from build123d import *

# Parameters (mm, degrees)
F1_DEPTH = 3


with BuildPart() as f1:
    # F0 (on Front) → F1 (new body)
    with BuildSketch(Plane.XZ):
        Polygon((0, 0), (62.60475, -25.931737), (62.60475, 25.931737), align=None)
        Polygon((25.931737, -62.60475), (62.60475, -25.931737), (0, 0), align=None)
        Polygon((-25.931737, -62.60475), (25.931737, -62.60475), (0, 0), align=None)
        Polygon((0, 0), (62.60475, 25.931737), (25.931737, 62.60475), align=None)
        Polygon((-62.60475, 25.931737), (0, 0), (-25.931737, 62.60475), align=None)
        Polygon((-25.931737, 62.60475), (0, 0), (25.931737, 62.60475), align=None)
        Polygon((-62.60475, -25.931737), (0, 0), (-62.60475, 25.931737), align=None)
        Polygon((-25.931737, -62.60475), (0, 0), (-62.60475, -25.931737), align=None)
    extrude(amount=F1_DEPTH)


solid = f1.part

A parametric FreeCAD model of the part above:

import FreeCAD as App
import Part
import Sketcher
Q = App.Units.Quantity


def add_polygon(sketch, points):
    """Adds a closed chain of lines whose ends are joined by coincident constraints."""
    first, n = sketch.GeometryCount, len(points)
    for a, b in zip(points, points[1:] + points[:1]):
        sketch.addGeometry(Part.LineSegment(App.Vector(*a, 0), App.Vector(*b, 0)), False)
    for i in range(n):
        sketch.addConstraint(Sketcher.Constraint("Coincident", first + i, 2, first + (i + 1) % n, 1))

doc = App.newDocument("Part")
body = doc.addObject("PartDesign::Body", "Body")

# Sketch on XZ plane
sketch1 = body.newObject("Sketcher::SketchObject", "Sketch")
sketch1.AttachmentSupport = (doc.getObject("XZ_Plane"), [""])
sketch1.MapMode = "FlatFace"
add_polygon(sketch1, [(63, -26), (63, 26), (26, 63), (-26, 63), (-63, 26), (-63, -26), (-26, -63), (26, -63)])  # lines 0-7
sketch1.addConstraint([
    Sketcher.Constraint("Vertical", 0),
    Sketcher.Constraint("Horizontal", 2),
    Sketcher.Constraint("Vertical", 4),
    Sketcher.Constraint("Horizontal", 6),
    Sketcher.Constraint("Symmetric", 0, 2, 4, 2, -1, 1),
    Sketcher.Constraint("Symmetric", 1, 2, 5, 2, -1, 1),
    Sketcher.Constraint("Perpendicular", 1, 3),
    Sketcher.Constraint("Perpendicular", 5, 7),
    Sketcher.Constraint("Horizontal", 0, 2, 3, 2),
    Sketcher.Constraint("Horizontal", 4, 2, 7, 2),
    Sketcher.Constraint("Vertical", 2, 2, 5, 2),
    Sketcher.Constraint("Equal", 6, 0),
    Sketcher.Constraint("DistanceX", 3, 2, 0, 2, Q("125.2095 mm")),
    Sketcher.Constraint("DistanceX", 2, 2, 2, 1, Q("51.863474 mm")),
])
pad1 = body.newObject("PartDesign::Pad", "Pad")
pad1.Profile = sketch1
pad1.Length = 3

doc.recompute()
